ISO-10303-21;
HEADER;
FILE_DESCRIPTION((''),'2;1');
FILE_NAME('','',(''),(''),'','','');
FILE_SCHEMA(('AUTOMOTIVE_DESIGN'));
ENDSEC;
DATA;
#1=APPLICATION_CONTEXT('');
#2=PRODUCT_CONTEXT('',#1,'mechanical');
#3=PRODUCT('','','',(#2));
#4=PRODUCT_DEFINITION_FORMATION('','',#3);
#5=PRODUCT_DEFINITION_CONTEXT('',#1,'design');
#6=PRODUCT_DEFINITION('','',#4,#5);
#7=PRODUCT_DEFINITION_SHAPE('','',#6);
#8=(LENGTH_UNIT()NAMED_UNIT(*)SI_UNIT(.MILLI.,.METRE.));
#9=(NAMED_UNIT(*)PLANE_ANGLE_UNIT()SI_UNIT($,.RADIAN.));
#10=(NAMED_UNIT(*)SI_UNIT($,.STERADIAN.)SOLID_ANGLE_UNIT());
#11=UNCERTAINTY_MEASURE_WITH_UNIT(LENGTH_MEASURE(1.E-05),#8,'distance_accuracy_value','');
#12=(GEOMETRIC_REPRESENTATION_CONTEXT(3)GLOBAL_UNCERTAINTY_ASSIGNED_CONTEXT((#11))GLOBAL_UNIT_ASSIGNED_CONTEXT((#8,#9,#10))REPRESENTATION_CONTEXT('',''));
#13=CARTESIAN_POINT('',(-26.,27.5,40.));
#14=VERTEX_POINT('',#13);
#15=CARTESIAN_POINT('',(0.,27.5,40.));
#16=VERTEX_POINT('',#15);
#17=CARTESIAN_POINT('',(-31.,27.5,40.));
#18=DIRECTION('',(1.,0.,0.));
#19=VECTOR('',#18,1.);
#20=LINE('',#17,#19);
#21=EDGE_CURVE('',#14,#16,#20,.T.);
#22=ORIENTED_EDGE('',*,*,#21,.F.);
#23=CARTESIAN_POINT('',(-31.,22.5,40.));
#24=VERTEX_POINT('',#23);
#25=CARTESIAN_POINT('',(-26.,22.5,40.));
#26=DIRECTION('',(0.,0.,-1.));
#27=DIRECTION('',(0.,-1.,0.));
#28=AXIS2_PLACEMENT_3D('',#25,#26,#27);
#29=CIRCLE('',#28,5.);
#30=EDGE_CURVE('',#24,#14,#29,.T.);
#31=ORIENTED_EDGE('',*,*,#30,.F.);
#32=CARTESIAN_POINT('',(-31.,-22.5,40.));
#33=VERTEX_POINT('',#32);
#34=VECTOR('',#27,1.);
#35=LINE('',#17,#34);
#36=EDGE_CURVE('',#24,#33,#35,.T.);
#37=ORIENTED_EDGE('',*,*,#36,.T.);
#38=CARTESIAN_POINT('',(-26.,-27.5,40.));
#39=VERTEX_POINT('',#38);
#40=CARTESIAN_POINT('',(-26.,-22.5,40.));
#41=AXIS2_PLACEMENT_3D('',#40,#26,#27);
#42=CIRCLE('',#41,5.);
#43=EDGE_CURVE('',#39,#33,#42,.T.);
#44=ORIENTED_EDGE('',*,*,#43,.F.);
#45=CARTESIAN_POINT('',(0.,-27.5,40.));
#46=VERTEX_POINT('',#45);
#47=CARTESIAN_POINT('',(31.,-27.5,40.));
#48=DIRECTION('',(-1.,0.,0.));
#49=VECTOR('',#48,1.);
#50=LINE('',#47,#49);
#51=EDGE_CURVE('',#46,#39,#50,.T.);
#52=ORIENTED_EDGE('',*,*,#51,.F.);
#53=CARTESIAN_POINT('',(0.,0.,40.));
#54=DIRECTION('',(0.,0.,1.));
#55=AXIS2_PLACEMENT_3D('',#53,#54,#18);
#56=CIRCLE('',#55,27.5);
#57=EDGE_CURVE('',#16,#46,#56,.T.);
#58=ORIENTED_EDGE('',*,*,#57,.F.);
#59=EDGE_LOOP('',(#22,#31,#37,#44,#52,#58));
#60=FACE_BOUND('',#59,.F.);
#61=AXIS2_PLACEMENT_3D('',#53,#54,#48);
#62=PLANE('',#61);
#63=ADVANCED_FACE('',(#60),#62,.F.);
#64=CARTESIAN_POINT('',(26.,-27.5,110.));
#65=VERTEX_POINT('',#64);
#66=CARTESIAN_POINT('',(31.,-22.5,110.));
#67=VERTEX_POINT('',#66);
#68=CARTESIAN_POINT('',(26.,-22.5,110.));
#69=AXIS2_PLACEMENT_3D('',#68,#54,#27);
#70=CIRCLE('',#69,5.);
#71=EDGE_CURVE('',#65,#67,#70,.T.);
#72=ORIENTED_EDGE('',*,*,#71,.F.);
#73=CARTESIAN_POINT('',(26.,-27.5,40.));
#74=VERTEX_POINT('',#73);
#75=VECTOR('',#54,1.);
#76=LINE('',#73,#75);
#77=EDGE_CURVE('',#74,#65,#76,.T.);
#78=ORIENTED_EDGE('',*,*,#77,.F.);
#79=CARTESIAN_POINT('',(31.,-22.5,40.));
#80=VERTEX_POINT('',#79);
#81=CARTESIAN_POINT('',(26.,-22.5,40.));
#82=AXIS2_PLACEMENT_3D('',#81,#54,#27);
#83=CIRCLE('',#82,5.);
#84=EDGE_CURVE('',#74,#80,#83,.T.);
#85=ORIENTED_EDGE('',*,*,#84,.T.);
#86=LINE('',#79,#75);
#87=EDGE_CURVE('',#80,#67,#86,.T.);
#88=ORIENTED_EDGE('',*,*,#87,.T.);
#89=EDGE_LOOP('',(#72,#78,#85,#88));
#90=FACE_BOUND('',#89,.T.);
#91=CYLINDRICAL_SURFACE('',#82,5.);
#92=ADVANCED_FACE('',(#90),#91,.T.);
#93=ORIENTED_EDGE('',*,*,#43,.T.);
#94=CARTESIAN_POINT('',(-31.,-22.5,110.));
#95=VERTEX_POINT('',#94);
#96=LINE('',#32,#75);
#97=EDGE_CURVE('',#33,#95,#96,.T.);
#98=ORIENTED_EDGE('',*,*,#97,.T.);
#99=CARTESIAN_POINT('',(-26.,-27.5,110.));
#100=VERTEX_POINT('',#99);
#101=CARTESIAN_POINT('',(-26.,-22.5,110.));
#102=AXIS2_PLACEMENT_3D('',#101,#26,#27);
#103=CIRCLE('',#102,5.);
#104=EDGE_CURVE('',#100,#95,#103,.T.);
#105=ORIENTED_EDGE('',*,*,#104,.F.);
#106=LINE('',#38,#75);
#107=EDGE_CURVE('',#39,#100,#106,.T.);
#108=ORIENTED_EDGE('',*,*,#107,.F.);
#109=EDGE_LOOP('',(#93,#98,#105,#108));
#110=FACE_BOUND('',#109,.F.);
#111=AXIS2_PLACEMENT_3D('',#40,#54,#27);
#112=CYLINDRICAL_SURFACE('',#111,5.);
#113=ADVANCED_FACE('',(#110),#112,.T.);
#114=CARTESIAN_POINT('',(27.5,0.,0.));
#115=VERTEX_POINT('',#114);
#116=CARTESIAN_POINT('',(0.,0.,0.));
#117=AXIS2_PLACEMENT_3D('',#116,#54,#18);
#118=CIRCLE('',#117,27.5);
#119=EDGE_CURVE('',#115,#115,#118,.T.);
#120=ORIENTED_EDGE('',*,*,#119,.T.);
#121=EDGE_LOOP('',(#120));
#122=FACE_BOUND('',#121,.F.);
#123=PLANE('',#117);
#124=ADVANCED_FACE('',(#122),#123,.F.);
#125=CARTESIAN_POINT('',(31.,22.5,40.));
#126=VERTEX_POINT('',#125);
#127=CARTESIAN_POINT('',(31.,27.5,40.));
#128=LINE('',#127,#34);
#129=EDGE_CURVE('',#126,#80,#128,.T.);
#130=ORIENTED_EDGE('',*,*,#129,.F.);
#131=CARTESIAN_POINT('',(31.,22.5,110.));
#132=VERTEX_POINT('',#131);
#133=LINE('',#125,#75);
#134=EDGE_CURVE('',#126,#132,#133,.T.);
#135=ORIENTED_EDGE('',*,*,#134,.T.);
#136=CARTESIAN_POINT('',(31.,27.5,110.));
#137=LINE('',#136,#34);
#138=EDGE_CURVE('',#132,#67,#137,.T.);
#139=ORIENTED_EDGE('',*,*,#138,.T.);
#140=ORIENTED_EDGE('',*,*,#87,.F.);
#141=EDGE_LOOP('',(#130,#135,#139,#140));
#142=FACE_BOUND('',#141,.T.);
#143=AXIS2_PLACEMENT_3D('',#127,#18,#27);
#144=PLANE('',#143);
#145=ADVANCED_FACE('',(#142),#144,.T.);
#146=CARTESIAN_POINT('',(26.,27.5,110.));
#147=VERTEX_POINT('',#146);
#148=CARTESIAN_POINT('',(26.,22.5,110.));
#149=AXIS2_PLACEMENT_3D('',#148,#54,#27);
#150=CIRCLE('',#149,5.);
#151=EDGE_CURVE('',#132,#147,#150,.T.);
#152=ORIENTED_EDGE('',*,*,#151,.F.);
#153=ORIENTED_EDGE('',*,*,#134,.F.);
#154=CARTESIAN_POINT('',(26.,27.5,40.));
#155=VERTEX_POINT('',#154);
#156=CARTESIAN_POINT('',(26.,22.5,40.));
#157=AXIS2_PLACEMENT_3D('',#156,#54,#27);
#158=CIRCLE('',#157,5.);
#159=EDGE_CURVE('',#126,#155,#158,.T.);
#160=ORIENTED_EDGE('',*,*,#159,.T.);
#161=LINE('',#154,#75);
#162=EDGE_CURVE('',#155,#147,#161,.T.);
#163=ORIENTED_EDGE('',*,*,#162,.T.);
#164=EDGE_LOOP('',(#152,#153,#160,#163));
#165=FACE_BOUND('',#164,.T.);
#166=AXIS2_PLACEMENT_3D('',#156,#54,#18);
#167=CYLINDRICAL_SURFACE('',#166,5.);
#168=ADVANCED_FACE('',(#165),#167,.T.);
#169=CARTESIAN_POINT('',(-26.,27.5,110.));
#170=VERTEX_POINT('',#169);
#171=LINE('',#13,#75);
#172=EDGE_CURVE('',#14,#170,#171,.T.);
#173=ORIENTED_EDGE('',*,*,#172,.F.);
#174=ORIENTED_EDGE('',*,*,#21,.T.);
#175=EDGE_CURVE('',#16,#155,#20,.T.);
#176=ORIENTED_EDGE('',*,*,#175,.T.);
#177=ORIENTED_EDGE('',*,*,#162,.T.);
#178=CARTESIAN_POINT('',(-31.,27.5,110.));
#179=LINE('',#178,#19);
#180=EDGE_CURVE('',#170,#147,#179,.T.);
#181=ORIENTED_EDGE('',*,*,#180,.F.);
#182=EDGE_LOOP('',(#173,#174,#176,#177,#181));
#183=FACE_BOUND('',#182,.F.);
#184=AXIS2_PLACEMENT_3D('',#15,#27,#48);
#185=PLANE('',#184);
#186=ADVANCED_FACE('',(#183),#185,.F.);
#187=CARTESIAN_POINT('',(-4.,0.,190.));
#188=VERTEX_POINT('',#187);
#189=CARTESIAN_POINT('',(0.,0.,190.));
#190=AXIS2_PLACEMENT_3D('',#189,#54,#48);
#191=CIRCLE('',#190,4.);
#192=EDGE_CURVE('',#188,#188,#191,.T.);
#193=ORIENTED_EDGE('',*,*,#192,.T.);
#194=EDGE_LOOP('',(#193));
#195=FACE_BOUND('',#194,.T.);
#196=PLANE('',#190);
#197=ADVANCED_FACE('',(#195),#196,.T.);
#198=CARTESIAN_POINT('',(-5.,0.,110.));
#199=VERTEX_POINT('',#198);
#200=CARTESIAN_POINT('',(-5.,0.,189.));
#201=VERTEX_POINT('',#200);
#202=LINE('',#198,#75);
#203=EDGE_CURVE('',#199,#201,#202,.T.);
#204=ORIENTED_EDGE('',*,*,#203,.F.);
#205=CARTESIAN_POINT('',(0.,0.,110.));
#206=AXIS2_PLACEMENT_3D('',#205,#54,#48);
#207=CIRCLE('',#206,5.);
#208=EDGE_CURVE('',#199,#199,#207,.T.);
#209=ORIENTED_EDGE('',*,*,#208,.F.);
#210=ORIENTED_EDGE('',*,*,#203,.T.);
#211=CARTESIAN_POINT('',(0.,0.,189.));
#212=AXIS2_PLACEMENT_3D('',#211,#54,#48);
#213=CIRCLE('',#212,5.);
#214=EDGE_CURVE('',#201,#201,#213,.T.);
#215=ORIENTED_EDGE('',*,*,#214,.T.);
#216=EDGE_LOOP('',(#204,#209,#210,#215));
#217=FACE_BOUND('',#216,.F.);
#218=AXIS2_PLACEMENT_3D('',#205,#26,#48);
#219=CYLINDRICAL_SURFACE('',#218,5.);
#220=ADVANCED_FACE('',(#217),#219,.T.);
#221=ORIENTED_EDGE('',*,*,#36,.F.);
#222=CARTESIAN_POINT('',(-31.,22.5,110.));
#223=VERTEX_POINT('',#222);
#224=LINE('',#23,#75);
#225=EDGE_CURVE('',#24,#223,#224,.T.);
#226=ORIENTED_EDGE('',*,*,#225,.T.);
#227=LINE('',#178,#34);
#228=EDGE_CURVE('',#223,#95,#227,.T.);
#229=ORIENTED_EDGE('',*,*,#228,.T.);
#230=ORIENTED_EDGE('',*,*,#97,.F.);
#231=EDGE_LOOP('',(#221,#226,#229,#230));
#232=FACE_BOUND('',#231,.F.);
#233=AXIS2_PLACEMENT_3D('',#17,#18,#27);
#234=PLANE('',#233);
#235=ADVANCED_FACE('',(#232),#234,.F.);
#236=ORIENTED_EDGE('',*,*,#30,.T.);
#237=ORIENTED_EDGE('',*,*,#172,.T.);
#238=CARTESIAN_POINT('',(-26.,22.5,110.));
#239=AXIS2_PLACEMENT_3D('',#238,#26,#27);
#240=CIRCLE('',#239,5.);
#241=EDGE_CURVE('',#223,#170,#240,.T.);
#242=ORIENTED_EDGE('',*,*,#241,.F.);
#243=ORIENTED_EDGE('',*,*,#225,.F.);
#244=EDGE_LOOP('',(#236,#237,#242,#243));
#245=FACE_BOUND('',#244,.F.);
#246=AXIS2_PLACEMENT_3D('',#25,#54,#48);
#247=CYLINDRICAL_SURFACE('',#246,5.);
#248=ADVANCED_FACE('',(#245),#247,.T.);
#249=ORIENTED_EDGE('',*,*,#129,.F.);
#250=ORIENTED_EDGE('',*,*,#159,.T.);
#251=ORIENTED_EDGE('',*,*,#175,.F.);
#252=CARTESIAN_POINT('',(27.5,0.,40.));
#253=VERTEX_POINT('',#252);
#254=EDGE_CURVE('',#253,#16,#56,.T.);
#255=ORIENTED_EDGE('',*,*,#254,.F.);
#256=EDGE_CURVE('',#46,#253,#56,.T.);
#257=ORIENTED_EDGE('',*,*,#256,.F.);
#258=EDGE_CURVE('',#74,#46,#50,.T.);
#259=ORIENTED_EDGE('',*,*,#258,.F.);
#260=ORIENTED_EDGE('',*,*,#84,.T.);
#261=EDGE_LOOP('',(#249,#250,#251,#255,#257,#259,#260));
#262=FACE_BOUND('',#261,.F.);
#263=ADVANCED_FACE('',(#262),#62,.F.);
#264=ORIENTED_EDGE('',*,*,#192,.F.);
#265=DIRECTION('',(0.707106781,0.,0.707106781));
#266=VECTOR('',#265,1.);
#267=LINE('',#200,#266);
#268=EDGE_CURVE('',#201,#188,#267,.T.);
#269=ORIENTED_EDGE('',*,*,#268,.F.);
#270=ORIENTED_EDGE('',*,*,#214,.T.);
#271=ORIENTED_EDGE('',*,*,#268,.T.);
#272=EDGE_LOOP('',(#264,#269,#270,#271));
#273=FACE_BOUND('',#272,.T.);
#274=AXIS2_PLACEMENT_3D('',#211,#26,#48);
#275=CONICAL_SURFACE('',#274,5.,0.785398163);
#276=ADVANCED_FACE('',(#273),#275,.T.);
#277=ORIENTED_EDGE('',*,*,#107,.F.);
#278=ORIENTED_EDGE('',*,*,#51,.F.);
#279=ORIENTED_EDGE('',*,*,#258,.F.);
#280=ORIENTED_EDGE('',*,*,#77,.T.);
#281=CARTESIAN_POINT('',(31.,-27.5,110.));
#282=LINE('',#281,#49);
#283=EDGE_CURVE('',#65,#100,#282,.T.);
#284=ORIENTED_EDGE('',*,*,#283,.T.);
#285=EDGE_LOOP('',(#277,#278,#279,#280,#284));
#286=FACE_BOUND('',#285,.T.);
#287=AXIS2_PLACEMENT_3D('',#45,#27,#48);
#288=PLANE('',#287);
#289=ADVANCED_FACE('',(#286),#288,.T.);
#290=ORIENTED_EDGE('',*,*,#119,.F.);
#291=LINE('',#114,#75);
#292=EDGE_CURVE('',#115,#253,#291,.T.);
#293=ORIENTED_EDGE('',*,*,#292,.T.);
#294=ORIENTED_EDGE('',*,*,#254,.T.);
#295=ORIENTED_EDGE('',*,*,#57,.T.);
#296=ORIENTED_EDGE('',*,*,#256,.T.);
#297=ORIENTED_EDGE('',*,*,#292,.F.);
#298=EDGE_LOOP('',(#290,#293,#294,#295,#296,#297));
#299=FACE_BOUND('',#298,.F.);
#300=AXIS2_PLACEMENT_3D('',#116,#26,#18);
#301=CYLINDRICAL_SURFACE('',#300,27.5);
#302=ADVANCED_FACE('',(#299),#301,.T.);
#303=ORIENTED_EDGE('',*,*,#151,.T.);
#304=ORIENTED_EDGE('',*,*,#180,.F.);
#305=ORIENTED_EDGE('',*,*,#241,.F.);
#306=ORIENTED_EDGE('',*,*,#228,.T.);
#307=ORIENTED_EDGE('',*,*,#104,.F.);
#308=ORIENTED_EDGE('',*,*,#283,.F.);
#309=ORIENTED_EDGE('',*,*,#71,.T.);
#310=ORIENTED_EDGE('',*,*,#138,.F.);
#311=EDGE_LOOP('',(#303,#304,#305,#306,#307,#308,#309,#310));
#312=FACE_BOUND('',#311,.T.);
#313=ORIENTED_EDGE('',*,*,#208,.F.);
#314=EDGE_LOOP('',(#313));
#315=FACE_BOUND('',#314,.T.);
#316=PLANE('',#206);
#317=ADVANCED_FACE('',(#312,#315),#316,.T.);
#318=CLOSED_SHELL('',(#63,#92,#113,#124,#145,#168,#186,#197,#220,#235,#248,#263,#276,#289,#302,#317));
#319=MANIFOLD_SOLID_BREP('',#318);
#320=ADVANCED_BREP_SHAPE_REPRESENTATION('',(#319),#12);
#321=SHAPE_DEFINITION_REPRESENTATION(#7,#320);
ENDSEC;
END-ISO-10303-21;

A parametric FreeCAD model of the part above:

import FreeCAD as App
import Part
import Sketcher
from FreeCAD import Vector


def edges_at(feature, points):
    """Names of the edges that pass closest to the given points."""
    edges = feature.Shape.Edges
    near = lambda p: min(range(len(edges)), key=lambda i: edges[i].distToShape(Part.Vertex(*p))[0])
    return sorted({f"Edge{near(p) + 1}" for p in points})


def add_polygon(sketch, points):
    """Adds a closed chain of lines whose ends are joined by coincident constraints."""
    first, n = sketch.GeometryCount, len(points)
    for a, b in zip(points, points[1:] + points[:1]):
        sketch.addGeometry(Part.LineSegment(App.Vector(*a, 0), App.Vector(*b, 0)), False)
    for i in range(n):
        sketch.addConstraint(Sketcher.Constraint("Coincident", first + i, 2, first + (i + 1) % n, 1))

doc = App.newDocument("Part")
params = doc.addObject("Spreadsheet::Sheet", "Params")
for row, (alias, value) in enumerate([
    ("sketch1_diameter", "55 mm"),
    ("pad1_length", "40 mm"),
    ("sketch2_height", "55 mm"),
    ("pad2_length", "70 mm"),
    ("sketch3_diameter", "10 mm"),
    ("pad3_length", "80 mm"),
    ("chamfer_size", "1 mm"),
    ("fillet_radius", "5 mm"),
], start=1):
    params.set(f"A{row}", alias)
    params.set(f"B{row}", "=" + value)
    params.setAlias(f"B{row}", alias)

body = doc.addObject("PartDesign::Body", "Body")

# Sketch on XY plane
sketch1 = body.newObject("Sketcher::SketchObject", "Sketch")
sketch1.AttachmentSupport = (doc.getObject("XY_Plane"), [""])
sketch1.MapMode = "FlatFace"
sketch1.addGeometry(Part.Circle(Vector(0, 0, 0), Vector(0, 0, 1), 27.5), False)
sketch1.addConstraint(Sketcher.Constraint("Coincident", 0, 3, -1, 1))
sketch1.addConstraint(Sketcher.Constraint("Diameter", 0, 55.0))
sketch1.setExpression("Constraints[1]", "Params.sketch1_diameter")
pad1 = body.newObject("PartDesign::Pad", "Pad")
pad1.Profile = sketch1
pad1.setExpression("Length", "Params.pad1_length")

# Sketch on XY plane
sketch2 = body.newObject("Sketcher::SketchObject", "Sketch001")
sketch2.AttachmentSupport = (doc.getObject("XY_Plane"), [""])
sketch2.MapMode = "FlatFace"
sketch2.AttachmentOffset = App.Placement(Vector(0, 0, 40), App.Rotation())
add_polygon(sketch2, [(-31, 27.5), (-31, -27.5), (31, -27.5), (31, 27.5)])  # lines 0-3
sketch2.addConstraint(Sketcher.Constraint("Vertical", 0))
sketch2.addConstraint(Sketcher.Constraint("Horizontal", 1))
sketch2.addConstraint(Sketcher.Constraint("Vertical", 2))
sketch2.addConstraint(Sketcher.Constraint("Horizontal", 3))
sketch2.addConstraint(Sketcher.Constraint("Symmetric", 0, 2, 2, 2, -1, 1))
sketch2.addConstraint(Sketcher.Constraint("DistanceX", 0, 2, -1, 1, 31.0))
sketch2.addConstraint(Sketcher.Constraint("DistanceY", 0, 2, 0, 1, 55.0))
sketch2.setExpression("Constraints[10]", "Params.sketch2_height")
pad2 = body.newObject("PartDesign::Pad", "Pad001")
pad2.Profile = sketch2
pad2.setExpression("Length", "Params.pad2_length")

# Sketch on XY plane
sketch3 = body.newObject("Sketcher::SketchObject", "Sketch002")
sketch3.AttachmentSupport = (doc.getObject("XY_Plane"), [""])
sketch3.MapMode = "FlatFace"
sketch3.AttachmentOffset = App.Placement(Vector(0, 0, 110), App.Rotation())
sketch3.addGeometry(Part.Circle(Vector(0, 0, 0), Vector(0, 0, 1), 5), False)
sketch3.addConstraint(Sketcher.Constraint("Coincident", 0, 3, -1, 1))
sketch3.addConstraint(Sketcher.Constraint("Diameter", 0, 10.0))
sketch3.setExpression("Constraints[1]", "Params.sketch3_diameter")
pad3 = body.newObject("PartDesign::Pad", "Pad002")
pad3.Profile = sketch3
pad3.setExpression("Length", "Params.pad3_length")
doc.recompute()

chamfer = body.newObject("PartDesign::Chamfer", "Chamfer")
chamfer.Base = (pad3, edges_at(pad3, [(4.662, 1.808, 190)]))
chamfer.setExpression("Size", "Params.chamfer_size")
doc.recompute()

fillet = body.newObject("PartDesign::Fillet", "Fillet")
fillet.Base = (chamfer, edges_at(chamfer, [
    (31, -27.5, 75),
    (31, 27.5, 75),
    (-31, 27.5, 75),
    (-31, -27.5, 75),
]))
fillet.setExpression("Radius", "Params.fillet_radius")

doc.recompute()
